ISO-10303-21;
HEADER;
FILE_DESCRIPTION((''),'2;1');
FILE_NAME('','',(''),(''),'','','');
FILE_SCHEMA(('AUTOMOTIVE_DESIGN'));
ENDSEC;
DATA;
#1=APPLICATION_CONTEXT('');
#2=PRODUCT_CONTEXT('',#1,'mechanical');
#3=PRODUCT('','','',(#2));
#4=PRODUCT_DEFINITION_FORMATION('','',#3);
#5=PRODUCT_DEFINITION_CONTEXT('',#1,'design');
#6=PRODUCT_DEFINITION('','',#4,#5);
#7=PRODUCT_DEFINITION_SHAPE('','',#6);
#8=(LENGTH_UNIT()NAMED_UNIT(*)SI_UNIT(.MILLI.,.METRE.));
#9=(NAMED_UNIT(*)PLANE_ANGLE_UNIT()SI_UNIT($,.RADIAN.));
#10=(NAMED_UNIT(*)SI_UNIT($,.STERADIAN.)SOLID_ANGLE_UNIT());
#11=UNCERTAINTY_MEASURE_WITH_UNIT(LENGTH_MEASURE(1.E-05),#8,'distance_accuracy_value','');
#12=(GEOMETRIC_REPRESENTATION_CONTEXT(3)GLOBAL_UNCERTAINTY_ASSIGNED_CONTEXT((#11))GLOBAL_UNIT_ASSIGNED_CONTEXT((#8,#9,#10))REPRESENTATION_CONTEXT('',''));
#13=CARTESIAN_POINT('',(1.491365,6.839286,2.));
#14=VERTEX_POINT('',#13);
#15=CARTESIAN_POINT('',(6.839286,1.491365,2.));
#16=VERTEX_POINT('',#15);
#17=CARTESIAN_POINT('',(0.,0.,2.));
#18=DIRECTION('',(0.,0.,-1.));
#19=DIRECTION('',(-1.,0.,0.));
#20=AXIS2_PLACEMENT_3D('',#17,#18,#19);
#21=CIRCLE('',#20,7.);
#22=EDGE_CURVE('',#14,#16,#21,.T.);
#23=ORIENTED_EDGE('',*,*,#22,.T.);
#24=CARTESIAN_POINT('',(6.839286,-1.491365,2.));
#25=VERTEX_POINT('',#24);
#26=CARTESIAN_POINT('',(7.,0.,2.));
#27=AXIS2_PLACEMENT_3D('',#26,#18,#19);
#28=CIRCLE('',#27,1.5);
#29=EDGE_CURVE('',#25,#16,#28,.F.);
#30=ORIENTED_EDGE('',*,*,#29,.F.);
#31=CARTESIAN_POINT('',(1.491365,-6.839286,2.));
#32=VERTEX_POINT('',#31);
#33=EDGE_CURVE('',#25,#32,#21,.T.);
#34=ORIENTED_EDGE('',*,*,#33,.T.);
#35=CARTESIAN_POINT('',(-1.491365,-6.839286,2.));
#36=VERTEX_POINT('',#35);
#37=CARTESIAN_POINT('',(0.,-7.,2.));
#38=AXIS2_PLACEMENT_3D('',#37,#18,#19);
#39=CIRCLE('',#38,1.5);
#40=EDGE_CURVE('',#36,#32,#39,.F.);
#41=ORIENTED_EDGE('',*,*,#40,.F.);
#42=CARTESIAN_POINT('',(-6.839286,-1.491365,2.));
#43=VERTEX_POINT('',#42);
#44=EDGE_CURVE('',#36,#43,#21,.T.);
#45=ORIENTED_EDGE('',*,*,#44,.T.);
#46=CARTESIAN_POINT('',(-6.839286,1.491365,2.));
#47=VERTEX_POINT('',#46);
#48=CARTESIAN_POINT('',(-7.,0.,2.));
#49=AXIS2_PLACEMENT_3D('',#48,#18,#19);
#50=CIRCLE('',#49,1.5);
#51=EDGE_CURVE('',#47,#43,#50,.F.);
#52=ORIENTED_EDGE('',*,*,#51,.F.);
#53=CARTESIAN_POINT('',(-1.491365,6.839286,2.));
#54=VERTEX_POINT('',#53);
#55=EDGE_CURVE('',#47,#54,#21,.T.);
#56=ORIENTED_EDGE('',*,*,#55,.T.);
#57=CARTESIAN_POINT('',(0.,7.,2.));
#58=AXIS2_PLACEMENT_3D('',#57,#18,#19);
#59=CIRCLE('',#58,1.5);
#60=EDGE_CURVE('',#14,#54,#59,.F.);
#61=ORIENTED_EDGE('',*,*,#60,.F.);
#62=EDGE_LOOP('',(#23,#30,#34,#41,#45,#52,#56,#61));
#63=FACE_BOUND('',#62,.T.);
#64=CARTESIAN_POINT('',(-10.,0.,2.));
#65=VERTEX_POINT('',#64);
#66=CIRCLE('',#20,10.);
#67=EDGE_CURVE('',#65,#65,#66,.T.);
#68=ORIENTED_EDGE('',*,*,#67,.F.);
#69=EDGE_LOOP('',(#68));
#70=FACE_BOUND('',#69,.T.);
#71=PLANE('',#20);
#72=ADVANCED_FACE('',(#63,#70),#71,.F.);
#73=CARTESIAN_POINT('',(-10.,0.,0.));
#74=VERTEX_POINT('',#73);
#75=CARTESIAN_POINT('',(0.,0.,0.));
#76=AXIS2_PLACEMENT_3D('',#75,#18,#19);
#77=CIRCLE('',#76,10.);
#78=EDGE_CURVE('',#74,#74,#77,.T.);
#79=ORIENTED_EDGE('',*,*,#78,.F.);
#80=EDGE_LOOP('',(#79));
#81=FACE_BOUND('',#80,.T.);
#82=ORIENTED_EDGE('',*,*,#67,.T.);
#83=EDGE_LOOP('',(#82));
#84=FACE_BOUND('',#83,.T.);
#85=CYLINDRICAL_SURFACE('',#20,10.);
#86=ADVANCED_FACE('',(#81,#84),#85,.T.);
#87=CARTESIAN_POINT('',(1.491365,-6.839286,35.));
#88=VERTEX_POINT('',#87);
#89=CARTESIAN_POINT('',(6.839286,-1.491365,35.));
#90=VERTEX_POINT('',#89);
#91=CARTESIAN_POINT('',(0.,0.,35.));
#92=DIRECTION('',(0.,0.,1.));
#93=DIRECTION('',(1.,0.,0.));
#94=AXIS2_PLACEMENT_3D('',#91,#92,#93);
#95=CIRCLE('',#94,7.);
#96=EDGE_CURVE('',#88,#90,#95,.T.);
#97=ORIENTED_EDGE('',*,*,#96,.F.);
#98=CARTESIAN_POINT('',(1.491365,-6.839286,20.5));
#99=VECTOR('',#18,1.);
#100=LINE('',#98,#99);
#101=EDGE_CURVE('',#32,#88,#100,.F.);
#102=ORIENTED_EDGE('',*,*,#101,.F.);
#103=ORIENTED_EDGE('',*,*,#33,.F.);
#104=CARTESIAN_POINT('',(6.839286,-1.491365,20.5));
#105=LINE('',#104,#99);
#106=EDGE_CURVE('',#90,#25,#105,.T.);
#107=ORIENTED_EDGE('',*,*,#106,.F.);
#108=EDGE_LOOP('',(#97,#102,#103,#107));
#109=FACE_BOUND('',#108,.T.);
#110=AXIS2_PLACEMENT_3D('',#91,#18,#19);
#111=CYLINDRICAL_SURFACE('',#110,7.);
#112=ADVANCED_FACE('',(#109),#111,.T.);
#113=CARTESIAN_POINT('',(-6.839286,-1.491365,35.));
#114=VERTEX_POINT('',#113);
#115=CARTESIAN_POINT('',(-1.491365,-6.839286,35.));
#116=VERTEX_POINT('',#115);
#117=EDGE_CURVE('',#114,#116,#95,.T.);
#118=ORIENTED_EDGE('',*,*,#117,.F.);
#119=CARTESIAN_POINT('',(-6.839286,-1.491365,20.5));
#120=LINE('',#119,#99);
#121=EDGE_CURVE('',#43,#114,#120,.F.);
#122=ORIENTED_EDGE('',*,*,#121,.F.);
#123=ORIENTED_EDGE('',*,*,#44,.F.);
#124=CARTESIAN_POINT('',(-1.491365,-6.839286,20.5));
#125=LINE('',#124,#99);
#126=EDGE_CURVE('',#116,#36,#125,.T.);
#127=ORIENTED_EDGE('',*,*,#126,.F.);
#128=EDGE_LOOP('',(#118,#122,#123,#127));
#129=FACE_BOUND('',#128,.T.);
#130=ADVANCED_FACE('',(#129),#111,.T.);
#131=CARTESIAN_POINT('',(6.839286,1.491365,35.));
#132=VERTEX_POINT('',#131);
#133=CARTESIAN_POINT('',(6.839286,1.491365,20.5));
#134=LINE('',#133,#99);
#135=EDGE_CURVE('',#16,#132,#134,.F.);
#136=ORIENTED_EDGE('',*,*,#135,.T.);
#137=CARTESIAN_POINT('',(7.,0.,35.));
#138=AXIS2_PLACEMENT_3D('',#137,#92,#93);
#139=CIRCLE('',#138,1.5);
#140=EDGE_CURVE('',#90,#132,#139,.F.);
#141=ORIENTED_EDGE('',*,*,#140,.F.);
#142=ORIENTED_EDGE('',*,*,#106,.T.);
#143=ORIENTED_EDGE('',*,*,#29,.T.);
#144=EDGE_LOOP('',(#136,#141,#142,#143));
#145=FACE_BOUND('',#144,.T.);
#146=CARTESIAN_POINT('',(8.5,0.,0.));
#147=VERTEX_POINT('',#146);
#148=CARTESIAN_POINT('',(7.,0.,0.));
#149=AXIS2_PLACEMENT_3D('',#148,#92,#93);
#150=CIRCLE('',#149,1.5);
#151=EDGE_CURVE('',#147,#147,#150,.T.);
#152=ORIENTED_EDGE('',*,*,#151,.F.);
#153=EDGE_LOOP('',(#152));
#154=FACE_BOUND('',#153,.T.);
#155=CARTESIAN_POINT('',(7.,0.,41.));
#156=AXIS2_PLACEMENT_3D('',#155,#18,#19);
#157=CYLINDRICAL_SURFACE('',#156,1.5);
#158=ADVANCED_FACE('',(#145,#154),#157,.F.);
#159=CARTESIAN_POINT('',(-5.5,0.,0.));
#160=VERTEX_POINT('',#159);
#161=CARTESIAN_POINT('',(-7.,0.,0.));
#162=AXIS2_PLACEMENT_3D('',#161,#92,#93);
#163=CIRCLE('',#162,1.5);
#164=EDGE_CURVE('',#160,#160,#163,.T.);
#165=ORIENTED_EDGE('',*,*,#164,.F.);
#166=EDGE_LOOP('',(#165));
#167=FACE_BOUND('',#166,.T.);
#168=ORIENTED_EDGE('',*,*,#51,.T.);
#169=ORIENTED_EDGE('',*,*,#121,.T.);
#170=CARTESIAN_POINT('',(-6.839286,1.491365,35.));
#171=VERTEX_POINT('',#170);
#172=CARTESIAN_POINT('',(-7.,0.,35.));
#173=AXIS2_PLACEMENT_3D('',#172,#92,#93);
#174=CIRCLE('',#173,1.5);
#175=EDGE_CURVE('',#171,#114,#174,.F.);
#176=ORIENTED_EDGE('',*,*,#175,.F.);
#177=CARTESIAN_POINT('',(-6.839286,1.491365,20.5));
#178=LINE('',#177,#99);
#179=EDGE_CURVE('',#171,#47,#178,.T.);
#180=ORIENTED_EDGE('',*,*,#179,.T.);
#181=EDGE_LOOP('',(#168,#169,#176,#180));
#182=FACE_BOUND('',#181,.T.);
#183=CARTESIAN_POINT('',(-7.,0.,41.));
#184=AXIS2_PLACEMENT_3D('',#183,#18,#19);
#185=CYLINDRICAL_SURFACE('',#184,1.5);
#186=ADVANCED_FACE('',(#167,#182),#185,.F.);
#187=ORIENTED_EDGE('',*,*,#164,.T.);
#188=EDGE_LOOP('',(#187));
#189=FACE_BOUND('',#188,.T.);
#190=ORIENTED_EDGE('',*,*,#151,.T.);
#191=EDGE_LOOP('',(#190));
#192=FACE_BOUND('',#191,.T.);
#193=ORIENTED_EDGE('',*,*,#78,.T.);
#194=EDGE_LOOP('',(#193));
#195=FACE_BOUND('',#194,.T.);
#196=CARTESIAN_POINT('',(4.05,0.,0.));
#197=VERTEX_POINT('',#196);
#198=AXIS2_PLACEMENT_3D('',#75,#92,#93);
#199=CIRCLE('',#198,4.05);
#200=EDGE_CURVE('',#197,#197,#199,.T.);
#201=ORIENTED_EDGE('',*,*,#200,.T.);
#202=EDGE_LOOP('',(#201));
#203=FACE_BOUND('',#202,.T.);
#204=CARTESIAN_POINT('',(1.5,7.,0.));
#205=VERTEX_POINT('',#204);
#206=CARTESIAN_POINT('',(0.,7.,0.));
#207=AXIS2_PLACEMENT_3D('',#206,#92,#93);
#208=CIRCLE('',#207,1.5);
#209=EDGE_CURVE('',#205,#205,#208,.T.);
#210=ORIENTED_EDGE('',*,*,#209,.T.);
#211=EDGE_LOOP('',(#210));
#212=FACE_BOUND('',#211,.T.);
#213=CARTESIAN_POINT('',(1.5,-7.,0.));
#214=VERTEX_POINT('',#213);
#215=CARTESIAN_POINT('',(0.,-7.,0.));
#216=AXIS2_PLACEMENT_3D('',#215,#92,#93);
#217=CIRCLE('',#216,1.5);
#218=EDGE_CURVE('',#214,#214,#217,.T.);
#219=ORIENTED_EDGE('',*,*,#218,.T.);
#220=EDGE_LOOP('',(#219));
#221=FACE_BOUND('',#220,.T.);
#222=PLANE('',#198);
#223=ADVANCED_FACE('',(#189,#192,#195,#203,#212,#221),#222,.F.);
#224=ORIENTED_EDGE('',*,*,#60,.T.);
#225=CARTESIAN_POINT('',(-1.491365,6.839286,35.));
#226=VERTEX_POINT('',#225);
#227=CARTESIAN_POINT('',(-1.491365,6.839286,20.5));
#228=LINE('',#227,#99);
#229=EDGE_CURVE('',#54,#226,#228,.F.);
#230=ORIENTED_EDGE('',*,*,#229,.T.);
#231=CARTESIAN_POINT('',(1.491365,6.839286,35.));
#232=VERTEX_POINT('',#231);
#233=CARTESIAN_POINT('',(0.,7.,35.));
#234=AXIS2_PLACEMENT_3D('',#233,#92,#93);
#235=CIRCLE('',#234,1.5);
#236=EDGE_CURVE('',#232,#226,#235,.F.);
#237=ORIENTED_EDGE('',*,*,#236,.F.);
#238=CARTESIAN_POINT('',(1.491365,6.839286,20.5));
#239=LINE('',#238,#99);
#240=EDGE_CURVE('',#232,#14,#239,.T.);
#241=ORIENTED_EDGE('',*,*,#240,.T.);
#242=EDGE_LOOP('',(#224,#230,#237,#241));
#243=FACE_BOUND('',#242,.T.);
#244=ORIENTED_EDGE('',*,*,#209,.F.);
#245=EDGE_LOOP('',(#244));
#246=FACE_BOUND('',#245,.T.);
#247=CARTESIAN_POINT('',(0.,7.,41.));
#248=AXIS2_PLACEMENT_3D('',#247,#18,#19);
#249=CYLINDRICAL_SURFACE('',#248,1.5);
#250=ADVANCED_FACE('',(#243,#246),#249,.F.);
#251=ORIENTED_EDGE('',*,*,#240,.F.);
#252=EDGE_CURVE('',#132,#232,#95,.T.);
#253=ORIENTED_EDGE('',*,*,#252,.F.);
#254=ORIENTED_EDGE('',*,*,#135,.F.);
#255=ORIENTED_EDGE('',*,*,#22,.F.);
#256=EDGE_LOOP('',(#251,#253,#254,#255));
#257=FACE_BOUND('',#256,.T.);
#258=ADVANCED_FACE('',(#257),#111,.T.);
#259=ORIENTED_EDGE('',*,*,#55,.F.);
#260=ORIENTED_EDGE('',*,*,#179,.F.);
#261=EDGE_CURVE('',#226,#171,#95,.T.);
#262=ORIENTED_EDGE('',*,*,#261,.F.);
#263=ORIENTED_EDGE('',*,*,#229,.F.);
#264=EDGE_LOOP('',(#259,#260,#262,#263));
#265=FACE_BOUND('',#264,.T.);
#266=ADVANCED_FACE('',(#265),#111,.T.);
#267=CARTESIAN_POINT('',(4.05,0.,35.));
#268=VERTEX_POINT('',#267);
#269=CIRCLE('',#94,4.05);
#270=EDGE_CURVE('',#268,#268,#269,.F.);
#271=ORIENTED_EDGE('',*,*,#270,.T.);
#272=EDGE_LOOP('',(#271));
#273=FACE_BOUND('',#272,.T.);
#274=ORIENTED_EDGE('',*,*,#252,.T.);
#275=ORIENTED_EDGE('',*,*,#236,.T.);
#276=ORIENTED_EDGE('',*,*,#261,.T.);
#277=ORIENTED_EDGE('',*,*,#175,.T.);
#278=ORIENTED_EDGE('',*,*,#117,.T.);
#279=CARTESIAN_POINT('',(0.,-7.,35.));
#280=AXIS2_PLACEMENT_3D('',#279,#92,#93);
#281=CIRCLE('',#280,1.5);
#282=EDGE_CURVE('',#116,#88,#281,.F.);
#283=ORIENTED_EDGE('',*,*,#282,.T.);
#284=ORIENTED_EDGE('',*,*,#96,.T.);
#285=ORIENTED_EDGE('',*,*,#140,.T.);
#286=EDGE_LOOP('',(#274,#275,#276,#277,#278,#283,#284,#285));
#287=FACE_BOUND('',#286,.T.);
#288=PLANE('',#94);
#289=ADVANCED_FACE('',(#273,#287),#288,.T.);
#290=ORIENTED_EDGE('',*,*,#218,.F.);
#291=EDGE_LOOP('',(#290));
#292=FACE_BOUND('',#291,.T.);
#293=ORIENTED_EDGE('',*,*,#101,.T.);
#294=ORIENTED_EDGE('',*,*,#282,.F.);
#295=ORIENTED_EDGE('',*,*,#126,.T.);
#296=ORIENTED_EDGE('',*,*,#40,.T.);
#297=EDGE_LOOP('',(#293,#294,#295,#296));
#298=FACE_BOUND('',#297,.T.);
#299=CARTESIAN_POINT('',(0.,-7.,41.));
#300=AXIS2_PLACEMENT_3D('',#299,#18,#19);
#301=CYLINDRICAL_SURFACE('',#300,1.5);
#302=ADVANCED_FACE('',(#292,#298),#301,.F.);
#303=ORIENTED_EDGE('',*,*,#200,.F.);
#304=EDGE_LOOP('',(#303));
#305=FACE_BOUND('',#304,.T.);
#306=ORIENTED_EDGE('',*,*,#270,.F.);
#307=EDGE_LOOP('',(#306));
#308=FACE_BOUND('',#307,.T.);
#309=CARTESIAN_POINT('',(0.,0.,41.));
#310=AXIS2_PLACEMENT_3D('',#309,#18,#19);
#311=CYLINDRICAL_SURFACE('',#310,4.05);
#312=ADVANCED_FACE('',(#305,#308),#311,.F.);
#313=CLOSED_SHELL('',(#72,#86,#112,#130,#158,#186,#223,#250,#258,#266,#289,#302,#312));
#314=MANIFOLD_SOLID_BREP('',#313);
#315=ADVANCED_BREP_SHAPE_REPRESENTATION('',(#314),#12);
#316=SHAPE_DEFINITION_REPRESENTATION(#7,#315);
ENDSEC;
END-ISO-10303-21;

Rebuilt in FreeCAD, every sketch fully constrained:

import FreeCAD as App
import Part
import Sketcher
Q = App.Units.Quantity

doc = App.newDocument("Part")
body = doc.addObject("PartDesign::Body", "Body")

# Sketch on XY plane
sketch1 = body.newObject("Sketcher::SketchObject", "Sketch")
sketch1.AttachmentSupport = (doc.getObject("XY_Plane"), [""])
sketch1.MapMode = "FlatFace"
sketch1.addGeometry(Part.Circle(App.Vector(0, 0, 0), App.Vector(0, 0, 1), 7), False)
sketch1.addConstraint([
    Sketcher.Constraint("Coincident", 0, 3, -1, 1),
    Sketcher.Constraint("Diameter", 0, Q("14 mm")),
])
pad1 = body.newObject("PartDesign::Pad", "Pad")
pad1.Profile = sketch1
pad1.Length = 35

# Sketch on XY plane
sketch2 = body.newObject("Sketcher::SketchObject", "Sketch001")
sketch2.AttachmentSupport = (doc.getObject("XY_Plane"), [""])
sketch2.MapMode = "FlatFace"
sketch2.addGeometry(Part.Circle(App.Vector(0, 0, 0), App.Vector(0, 0, 1), 10), False)
sketch2.addConstraint([
    Sketcher.Constraint("Coincident", 0, 3, -1, 1),
    Sketcher.Constraint("Diameter", 0, Q("20 mm")),
])
pad2 = body.newObject("PartDesign::Pad", "Pad001")
pad2.Profile = sketch2
pad2.Length = 2

# Sketch on XY plane
sketch3 = body.newObject("Sketcher::SketchObject", "Sketch002")
sketch3.AttachmentSupport = (doc.getObject("XY_Plane"), [""])
sketch3.MapMode = "FlatFace"
sketch3.addGeometry([
    Part.Circle(App.Vector(0, 0, 0), App.Vector(0, 0, 1), 4),  # 0
    Part.Circle(App.Vector(0, 7, 0), App.Vector(0, 0, 1), 1.5),  # 1
    Part.Circle(App.Vector(7, 0, 0), App.Vector(0, 0, 1), 1.5),  # 2
    Part.Circle(App.Vector(0, -7, 0), App.Vector(0, 0, 1), 1.5),  # 3
    Part.Circle(App.Vector(-7, 0, 0), App.Vector(0, 0, 1), 1.5),  # 4
], False)
sketch3.addConstraint([
    Sketcher.Constraint("Coincident", 0, 3, -1, 1),
    Sketcher.Constraint("Equal", 1, 2),
    Sketcher.Constraint("Equal", 2, 3),
    Sketcher.Constraint("Equal", 3, 4),
    Sketcher.Constraint("Symmetric", 1, 3, 3, 3, -1, 1),
    Sketcher.Constraint("Symmetric", 2, 3, 4, 3, -1, 1),
    Sketcher.Constraint("PointOnObject", 1, 3, -2),
    Sketcher.Constraint("PointOnObject", 2, 3, -1),
    Sketcher.Constraint("Diameter", 1, Q("3 mm")),
    Sketcher.Constraint("Diameter", 0, Q("8.1 mm")),
    Sketcher.Constraint("DistanceY", -1, 1, 1, 3, Q("7 mm")),
    Sketcher.Constraint("DistanceX", -1, 1, 2, 3, Q("7 mm")),
])
pocket1 = body.newObject("PartDesign::Pocket", "Pocket")
pocket1.Profile = sketch3
pocket1.Length = 41
pocket1.Reversed = True

doc.recompute()
